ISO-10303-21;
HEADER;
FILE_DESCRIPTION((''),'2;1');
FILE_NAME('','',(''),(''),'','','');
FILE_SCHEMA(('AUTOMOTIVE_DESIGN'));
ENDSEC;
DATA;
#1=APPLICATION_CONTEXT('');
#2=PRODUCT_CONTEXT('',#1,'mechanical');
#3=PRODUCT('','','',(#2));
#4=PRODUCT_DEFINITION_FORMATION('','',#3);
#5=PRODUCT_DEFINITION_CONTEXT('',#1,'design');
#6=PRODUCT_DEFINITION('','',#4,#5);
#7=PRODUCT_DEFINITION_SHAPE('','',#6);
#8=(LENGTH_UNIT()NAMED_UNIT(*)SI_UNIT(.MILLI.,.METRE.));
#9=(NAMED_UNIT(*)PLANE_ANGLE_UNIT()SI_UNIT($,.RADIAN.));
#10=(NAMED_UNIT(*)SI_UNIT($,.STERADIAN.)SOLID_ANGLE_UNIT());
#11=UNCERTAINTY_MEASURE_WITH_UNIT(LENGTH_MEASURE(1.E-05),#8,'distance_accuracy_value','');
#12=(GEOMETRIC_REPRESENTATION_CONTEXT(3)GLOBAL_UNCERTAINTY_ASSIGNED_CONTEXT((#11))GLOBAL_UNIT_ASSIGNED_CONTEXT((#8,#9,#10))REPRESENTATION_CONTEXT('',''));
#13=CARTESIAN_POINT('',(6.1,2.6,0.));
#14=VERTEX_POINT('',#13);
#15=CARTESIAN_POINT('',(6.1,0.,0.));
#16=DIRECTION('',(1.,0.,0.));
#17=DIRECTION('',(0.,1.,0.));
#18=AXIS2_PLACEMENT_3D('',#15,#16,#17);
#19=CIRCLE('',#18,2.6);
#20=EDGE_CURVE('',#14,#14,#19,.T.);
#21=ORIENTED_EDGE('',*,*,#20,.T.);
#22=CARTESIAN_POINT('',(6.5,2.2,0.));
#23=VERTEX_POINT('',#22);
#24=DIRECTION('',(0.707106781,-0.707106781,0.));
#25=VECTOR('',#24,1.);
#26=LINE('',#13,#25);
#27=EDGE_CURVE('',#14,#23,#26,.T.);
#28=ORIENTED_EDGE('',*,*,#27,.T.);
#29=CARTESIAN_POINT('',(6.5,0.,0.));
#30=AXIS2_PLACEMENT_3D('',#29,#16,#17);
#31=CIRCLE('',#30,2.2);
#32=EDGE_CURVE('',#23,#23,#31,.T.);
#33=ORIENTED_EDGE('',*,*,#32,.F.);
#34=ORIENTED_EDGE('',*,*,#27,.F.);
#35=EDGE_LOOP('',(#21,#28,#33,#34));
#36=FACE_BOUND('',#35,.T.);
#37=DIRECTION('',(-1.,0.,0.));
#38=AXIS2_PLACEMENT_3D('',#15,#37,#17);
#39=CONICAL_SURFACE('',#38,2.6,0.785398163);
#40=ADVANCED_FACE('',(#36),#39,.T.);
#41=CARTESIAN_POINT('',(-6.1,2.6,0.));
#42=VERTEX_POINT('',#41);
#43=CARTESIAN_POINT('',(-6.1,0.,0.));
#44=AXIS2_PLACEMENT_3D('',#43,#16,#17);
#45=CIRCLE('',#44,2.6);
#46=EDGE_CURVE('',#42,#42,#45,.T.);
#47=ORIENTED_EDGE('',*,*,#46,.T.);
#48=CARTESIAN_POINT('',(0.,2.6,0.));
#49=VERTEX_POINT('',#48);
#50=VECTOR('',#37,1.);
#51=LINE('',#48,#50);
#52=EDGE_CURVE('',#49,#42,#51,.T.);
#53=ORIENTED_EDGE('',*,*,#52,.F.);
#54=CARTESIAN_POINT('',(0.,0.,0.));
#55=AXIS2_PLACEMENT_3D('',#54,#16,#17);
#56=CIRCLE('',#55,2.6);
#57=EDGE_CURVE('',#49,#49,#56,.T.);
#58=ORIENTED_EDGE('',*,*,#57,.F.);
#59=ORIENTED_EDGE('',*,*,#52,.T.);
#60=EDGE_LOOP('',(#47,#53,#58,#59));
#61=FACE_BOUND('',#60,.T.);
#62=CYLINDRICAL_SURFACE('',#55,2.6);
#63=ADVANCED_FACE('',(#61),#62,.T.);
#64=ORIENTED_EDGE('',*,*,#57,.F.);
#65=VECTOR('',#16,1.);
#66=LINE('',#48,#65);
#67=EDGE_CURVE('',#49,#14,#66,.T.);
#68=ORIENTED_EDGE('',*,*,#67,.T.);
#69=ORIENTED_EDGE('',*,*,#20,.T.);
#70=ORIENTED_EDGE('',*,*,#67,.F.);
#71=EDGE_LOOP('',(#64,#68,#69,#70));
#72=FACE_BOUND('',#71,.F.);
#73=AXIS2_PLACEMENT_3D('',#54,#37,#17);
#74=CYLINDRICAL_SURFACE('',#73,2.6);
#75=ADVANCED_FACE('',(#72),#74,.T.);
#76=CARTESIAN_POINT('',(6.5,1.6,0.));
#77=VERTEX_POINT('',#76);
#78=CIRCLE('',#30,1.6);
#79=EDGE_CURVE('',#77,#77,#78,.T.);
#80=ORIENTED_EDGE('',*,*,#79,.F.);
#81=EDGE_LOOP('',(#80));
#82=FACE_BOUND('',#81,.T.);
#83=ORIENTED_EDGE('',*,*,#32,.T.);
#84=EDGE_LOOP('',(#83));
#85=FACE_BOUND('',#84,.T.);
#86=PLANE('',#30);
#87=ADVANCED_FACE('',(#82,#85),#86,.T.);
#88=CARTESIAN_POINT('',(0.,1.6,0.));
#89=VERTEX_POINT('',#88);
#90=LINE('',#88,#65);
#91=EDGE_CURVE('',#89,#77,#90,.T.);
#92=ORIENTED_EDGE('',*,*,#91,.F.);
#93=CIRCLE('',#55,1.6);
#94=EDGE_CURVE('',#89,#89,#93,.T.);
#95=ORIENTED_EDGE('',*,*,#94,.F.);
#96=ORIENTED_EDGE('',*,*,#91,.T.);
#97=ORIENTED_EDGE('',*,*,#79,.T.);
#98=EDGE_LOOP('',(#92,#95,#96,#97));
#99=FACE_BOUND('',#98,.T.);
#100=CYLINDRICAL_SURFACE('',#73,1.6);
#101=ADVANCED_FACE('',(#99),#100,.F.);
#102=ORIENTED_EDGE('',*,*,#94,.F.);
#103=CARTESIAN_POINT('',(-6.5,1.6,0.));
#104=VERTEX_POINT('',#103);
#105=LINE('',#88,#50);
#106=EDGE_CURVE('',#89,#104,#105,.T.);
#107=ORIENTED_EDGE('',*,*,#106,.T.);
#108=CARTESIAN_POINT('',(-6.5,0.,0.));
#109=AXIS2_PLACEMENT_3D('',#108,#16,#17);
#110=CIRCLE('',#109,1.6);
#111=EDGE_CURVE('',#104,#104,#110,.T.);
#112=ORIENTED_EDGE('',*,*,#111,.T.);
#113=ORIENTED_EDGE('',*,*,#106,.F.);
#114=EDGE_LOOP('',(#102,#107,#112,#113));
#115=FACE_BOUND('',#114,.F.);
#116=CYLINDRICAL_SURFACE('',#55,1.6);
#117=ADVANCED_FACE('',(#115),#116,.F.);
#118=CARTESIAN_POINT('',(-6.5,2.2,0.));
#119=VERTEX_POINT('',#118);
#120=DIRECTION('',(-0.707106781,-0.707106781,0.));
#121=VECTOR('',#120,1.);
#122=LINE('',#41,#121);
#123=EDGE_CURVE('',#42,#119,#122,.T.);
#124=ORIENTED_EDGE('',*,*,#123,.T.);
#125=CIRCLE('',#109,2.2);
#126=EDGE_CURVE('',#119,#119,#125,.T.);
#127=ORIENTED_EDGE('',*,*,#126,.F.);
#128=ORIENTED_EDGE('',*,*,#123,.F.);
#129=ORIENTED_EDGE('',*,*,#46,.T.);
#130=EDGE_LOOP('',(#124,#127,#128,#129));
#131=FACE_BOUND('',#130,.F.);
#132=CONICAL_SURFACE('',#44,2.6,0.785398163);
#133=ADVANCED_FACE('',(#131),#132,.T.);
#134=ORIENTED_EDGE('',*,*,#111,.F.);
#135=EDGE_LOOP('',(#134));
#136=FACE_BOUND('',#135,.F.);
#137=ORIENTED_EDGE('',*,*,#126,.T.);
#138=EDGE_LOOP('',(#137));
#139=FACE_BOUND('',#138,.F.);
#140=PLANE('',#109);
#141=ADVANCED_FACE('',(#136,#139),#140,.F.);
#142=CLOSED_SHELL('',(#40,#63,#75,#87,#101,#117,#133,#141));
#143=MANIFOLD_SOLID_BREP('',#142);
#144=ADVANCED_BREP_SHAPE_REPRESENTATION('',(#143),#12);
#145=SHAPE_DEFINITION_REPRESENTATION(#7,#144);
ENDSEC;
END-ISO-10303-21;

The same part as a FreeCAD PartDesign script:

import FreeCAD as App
import Part
import Sketcher


def edges_at(feature, points):
    """Names of the edges that pass closest to the given points."""
    edges = feature.Shape.Edges
    near = lambda p: min(range(len(edges)), key=lambda i: edges[i].distToShape(Part.Vertex(*p))[0])
    return sorted({f"Edge{near(p) + 1}" for p in points})

doc = App.newDocument("Part")
body = doc.addObject("PartDesign::Body", "Body")

# Sketch on YZ plane
sketch1 = body.newObject("Sketcher::SketchObject", "Sketch")
sketch1.AttachmentSupport = (doc.getObject("YZ_Plane"), [""])
sketch1.MapMode = "FlatFace"
sketch1.addGeometry(Part.Circle(App.Vector(0, 0, 0), App.Vector(0, 0, 1), 2.6), False)
sketch1.addGeometry(Part.Circle(App.Vector(0, 0, 0), App.Vector(0, 0, 1), 1.6), False)
sketch1.addConstraint(Sketcher.Constraint("Coincident", 0, 3, -1, 1))
sketch1.addConstraint(Sketcher.Constraint("Coincident", 1, 3, -1, 1))
sketch1.addConstraint(Sketcher.Constraint("Diameter", 1, 3.2))
sketch1.addConstraint(Sketcher.Constraint("Diameter", 0, 5.2))
pad1 = body.newObject("PartDesign::Pad", "Pad")
pad1.Profile = sketch1
pad1.Length = 13
pad1.Midplane = True
doc.recompute()

chamfer = body.newObject("PartDesign::Chamfer", "Chamfer")
chamfer.Base = (pad1, edges_at(pad1, [(6.5, -2.6, 0), (-6.5, -2.6, 0)]))
chamfer.Size = 0.4

doc.recompute()
